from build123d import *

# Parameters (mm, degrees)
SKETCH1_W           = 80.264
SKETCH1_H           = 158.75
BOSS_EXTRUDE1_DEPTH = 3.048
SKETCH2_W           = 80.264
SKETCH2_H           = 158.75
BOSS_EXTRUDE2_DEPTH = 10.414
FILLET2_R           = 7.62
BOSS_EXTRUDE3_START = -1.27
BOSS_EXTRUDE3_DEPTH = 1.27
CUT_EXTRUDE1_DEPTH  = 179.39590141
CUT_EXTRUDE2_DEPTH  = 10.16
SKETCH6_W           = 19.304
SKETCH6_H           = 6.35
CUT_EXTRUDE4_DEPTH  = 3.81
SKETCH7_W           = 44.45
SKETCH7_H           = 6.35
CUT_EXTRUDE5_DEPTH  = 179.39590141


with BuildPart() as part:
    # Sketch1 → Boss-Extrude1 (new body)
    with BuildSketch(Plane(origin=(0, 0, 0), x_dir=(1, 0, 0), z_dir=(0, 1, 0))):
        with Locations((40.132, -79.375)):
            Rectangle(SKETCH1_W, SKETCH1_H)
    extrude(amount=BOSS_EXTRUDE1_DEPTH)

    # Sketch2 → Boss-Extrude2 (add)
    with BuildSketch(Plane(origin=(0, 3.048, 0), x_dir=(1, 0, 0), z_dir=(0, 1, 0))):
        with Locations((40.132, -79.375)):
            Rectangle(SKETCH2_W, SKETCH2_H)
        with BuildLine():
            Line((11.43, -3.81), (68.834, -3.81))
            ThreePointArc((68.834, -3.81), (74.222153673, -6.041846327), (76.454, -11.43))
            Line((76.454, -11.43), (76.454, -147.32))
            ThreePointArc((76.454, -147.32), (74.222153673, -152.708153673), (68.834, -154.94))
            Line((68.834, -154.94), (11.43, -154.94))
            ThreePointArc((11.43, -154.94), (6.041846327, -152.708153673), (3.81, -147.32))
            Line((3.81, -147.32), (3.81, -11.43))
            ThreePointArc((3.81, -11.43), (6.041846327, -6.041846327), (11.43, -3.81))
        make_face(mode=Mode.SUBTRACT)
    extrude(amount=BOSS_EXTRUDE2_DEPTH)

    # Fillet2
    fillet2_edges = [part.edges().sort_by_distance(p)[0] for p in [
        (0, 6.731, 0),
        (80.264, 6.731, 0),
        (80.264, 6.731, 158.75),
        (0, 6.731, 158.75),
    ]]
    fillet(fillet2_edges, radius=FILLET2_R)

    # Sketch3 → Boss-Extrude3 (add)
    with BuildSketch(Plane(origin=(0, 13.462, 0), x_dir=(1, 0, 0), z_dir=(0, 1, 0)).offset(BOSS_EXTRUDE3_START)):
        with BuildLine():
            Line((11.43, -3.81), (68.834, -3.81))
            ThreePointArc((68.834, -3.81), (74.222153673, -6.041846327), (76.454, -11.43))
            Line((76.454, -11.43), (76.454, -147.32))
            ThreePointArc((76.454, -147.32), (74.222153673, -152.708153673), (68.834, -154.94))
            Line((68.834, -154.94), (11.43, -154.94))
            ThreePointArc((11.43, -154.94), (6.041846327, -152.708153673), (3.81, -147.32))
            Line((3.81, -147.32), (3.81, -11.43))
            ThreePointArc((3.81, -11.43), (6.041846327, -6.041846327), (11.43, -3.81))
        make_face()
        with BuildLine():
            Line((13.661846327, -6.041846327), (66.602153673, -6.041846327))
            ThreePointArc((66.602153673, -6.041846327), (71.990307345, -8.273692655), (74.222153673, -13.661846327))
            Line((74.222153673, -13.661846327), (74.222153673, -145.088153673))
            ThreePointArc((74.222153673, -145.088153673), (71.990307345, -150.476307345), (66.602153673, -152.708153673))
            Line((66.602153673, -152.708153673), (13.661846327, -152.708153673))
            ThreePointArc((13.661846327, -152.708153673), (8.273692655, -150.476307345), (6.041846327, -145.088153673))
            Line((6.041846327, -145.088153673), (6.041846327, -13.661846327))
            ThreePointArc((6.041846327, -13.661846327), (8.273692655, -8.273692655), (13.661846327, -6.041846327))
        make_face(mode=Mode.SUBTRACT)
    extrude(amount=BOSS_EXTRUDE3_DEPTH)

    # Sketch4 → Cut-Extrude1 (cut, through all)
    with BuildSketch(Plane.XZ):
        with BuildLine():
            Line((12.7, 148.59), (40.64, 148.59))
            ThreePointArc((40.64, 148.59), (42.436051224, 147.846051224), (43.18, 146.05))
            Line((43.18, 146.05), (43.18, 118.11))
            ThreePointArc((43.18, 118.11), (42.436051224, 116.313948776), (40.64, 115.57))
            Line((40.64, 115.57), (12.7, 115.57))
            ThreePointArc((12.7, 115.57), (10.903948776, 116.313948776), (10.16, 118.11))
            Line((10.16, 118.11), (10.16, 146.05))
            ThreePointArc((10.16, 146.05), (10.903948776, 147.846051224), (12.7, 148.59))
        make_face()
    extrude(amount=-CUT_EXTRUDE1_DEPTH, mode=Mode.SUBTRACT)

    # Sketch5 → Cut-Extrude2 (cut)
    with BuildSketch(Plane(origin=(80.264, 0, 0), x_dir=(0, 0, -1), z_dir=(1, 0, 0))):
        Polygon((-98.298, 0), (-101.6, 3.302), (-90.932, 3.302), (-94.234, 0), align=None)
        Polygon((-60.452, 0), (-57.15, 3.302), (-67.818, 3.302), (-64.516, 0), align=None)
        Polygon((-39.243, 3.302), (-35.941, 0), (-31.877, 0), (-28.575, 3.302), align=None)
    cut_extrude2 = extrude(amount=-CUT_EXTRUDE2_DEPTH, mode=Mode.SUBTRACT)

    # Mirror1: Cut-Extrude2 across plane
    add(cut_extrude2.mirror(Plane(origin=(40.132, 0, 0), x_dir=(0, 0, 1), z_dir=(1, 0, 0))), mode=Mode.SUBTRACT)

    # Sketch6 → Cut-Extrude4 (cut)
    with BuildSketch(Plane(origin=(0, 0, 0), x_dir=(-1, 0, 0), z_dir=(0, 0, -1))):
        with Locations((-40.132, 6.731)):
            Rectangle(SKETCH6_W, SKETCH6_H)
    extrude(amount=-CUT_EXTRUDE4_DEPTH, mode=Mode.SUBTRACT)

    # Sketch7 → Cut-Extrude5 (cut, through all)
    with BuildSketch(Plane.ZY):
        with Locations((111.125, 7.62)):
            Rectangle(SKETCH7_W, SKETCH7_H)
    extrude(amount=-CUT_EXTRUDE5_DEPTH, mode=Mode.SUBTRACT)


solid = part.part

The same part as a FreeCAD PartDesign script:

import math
import FreeCAD as App
import Part
import Sketcher
Q = App.Units.Quantity


def edges_at(feature, points):
    """Names of the edges that pass closest to the given points."""
    edges = feature.Shape.Edges
    near = lambda p: min(range(len(edges)), key=lambda i: edges[i].distToShape(Part.Vertex(*p))[0])
    return sorted({f"Edge{near(p) + 1}" for p in points})


def add_polygon(sketch, points):
    """Adds a closed chain of lines whose ends are joined by coincident constraints."""
    first, n = sketch.GeometryCount, len(points)
    for a, b in zip(points, points[1:] + points[:1]):
        sketch.addGeometry(Part.LineSegment(App.Vector(*a, 0), App.Vector(*b, 0)), False)
    for i in range(n):
        sketch.addConstraint(Sketcher.Constraint("Coincident", first + i, 2, first + (i + 1) % n, 1))

doc = App.newDocument("Part")
body = doc.addObject("PartDesign::Body", "Body")

# Sketch on XZ plane
sketch1 = body.newObject("Sketcher::SketchObject", "Sketch")
sketch1.AttachmentSupport = (doc.getObject("XZ_Plane"), [""])
sketch1.MapMode = "FlatFace"
add_polygon(sketch1, [(0, 0), (0, 159), (80, 159), (80, 0)])  # lines 0-3
sketch1.addConstraint([
    Sketcher.Constraint("Vertical", 0),
    Sketcher.Constraint("Horizontal", 1),
    Sketcher.Constraint("Vertical", 2),
    Sketcher.Constraint("Horizontal", 3),
    Sketcher.Constraint("Coincident", 3, 2, -1, 1),
    Sketcher.Constraint("DistanceX", 1, 1, 1, 2, Q("3.16 in")),
    Sketcher.Constraint("DistanceY", 0, 1, 0, 2, Q("6.25 in")),
])
pad1 = body.newObject("PartDesign::Pad", "Pad")
pad1.Profile = sketch1
pad1.Length = Q("0.12 in")
pad1.Reversed = True

# Sketch on XZ plane
sketch2 = body.newObject("Sketcher::SketchObject", "Sketch001")
sketch2.AttachmentSupport = (doc.getObject("XZ_Plane"), [""])
sketch2.MapMode = "FlatFace"
sketch2.AttachmentOffset = App.Placement(App.Vector(0, 0, -0.12 * 25.4), App.Rotation())
add_polygon(sketch2, [(0, 0), (0, 159), (80, 159), (80, 0)])  # lines 0-3
sketch2.addGeometry(Part.ArcOfCircle(Part.Circle(App.Vector(11, 11, 0), App.Vector(0, 0, 1), 8), math.radians(180), math.radians(270)), False)  # 4
sketch2.addGeometry(Part.LineSegment(App.Vector(11, 4, 0), App.Vector(69, 4, 0)), False)  # 5
sketch2.addGeometry(Part.ArcOfCircle(Part.Circle(App.Vector(69, 11, 0), App.Vector(0, 0, 1), 8), math.radians(-90), math.radians(0)), False)  # 6
sketch2.addGeometry(Part.LineSegment(App.Vector(76, 11, 0), App.Vector(76, 147, 0)), False)  # 7
sketch2.addGeometry(Part.ArcOfCircle(Part.Circle(App.Vector(69, 147, 0), App.Vector(0, 0, 1), 8), math.radians(0), math.radians(90)), False)  # 8
sketch2.addGeometry(Part.LineSegment(App.Vector(69, 155, 0), App.Vector(11, 155, 0)), False)  # 9
sketch2.addGeometry(Part.ArcOfCircle(Part.Circle(App.Vector(11, 147, 0), App.Vector(0, 0, 1), 8), math.radians(90), math.radians(180)), False)  # 10
sketch2.addGeometry(Part.LineSegment(App.Vector(4, 147, 0), App.Vector(4, 11, 0)), False)  # 11
sketch2.addConstraint([
    Sketcher.Constraint("Tangent", 4, 2, 5, 1),
    Sketcher.Constraint("Tangent", 5, 2, 6, 1),
    Sketcher.Constraint("Tangent", 6, 2, 7, 1),
    Sketcher.Constraint("Tangent", 7, 2, 8, 1),
    Sketcher.Constraint("Tangent", 8, 2, 9, 1),
    Sketcher.Constraint("Tangent", 9, 2, 10, 1),
    Sketcher.Constraint("Tangent", 10, 2, 11, 1),
    Sketcher.Constraint("Tangent", 11, 2, 4, 1),
    Sketcher.Constraint("Vertical", 0),
    Sketcher.Constraint("Horizontal", 1),
    Sketcher.Constraint("Vertical", 2),
    Sketcher.Constraint("Horizontal", 3),
    Sketcher.Constraint("Horizontal", 5),
    Sketcher.Constraint("Vertical", 7),
    Sketcher.Constraint("Horizontal", 9),
    Sketcher.Constraint("Vertical", 11),
    Sketcher.Constraint("Coincident", 3, 2, -1, 1),
    Sketcher.Constraint("Equal", 4, 6),
    Sketcher.Constraint("Equal", 6, 8),
    Sketcher.Constraint("Equal", 8, 10),
    Sketcher.Constraint("Radius", 4, Q("0.3 in")),
    Sketcher.Constraint("DistanceX", 1, 1, 1, 2, Q("3.16 in")),
    Sketcher.Constraint("DistanceX", 5, 1, 5, 2, Q("2.26 in")),
    Sketcher.Constraint("DistanceY", 0, 1, 0, 2, Q("6.25 in")),
    Sketcher.Constraint("DistanceY", 7, 1, 7, 2, Q("5.35 in")),
    Sketcher.Constraint("DistanceY", -1, 1, 8, 3, Q("5.8 in")),
    Sketcher.Constraint("DistanceX", -1, 1, 4, 3, Q("0.45 in")),
])
pad2 = body.newObject("PartDesign::Pad", "Pad001")
pad2.Profile = sketch2
pad2.Length = Q("0.41 in")
pad2.Reversed = True
doc.recompute()

fillet = body.newObject("PartDesign::Fillet", "Fillet")
fillet.Base = (pad2, edges_at(pad2, [
    (0, 6.731, 0),
    (80.264, 6.731, 0),
    (80.264, 6.731, 158.75),
    (0, 6.731, 158.75),
]))
fillet.Radius = Q("0.3 in")

# Sketch on XZ plane
sketch3 = body.newObject("Sketcher::SketchObject", "Sketch002")
sketch3.AttachmentSupport = (doc.getObject("XZ_Plane"), [""])
sketch3.MapMode = "FlatFace"
sketch3.AttachmentOffset = App.Placement(App.Vector(0, 0, -0.48 * 25.4), App.Rotation())
sketch3.addGeometry([
    Part.LineSegment(App.Vector(69, 4, 0), App.Vector(11, 4, 0)),  # 0
    Part.ArcOfCircle(Part.Circle(App.Vector(11, 11, 0), App.Vector(0, 0, 1), 8), math.radians(180), math.radians(270)),  # 1
    Part.LineSegment(App.Vector(4, 11, 0), App.Vector(4, 147, 0)),  # 2
    Part.ArcOfCircle(Part.Circle(App.Vector(11, 147, 0), App.Vector(0, 0, 1), 8), math.radians(90), math.radians(180)),  # 3
    Part.LineSegment(App.Vector(11, 155, 0), App.Vector(69, 155, 0)),  # 4
    Part.ArcOfCircle(Part.Circle(App.Vector(69, 147, 0), App.Vector(0, 0, 1), 8), math.radians(0), math.radians(90)),  # 5
    Part.LineSegment(App.Vector(76, 147, 0), App.Vector(76, 11, 0)),  # 6
    Part.ArcOfCircle(Part.Circle(App.Vector(69, 11, 0), App.Vector(0, 0, 1), 8), math.radians(-90), math.radians(0)),  # 7
    Part.LineSegment(App.Vector(14, 6, 0), App.Vector(67, 6, 0)),  # 8
    Part.ArcOfCircle(Part.Circle(App.Vector(67, 14, 0), App.Vector(0, 0, 1), 8), math.radians(-90), math.radians(0)),  # 9
    Part.LineSegment(App.Vector(74, 14, 0), App.Vector(74, 145, 0)),  # 10
    Part.ArcOfCircle(Part.Circle(App.Vector(67, 145, 0), App.Vector(0, 0, 1), 8), math.radians(0), math.radians(90)),  # 11
    Part.LineSegment(App.Vector(67, 153, 0), App.Vector(14, 153, 0)),  # 12
    Part.ArcOfCircle(Part.Circle(App.Vector(14, 145, 0), App.Vector(0, 0, 1), 8), math.radians(90), math.radians(180)),  # 13
    Part.LineSegment(App.Vector(6, 145, 0), App.Vector(6, 14, 0)),  # 14
    Part.ArcOfCircle(Part.Circle(App.Vector(14, 14, 0), App.Vector(0, 0, 1), 8), math.radians(-180), math.radians(-90)),  # 15
], False)
sketch3.addConstraint([
    Sketcher.Constraint("Tangent", 0, 2, 1, 2),
    Sketcher.Constraint("Tangent", 1, 1, 2, 1),
    Sketcher.Constraint("Tangent", 2, 2, 3, 2),
    Sketcher.Constraint("Tangent", 3, 1, 4, 1),
    Sketcher.Constraint("Tangent", 4, 2, 5, 2),
    Sketcher.Constraint("Tangent", 5, 1, 6, 1),
    Sketcher.Constraint("Tangent", 6, 2, 7, 2),
    Sketcher.Constraint("Tangent", 7, 1, 0, 1),
    Sketcher.Constraint("Tangent", 8, 2, 9, 1),
    Sketcher.Constraint("Tangent", 9, 2, 10, 1),
    Sketcher.Constraint("Tangent", 10, 2, 11, 1),
    Sketcher.Constraint("Tangent", 11, 2, 12, 1),
    Sketcher.Constraint("Tangent", 12, 2, 13, 1),
    Sketcher.Constraint("Tangent", 13, 2, 14, 1),
    Sketcher.Constraint("Tangent", 14, 2, 15, 1),
    Sketcher.Constraint("Tangent", 15, 2, 8, 1),
    Sketcher.Constraint("Horizontal", 0),
    Sketcher.Constraint("Vertical", 2),
    Sketcher.Constraint("Horizontal", 4),
    Sketcher.Constraint("Vertical", 6),
    Sketcher.Constraint("Horizontal", 8),
    Sketcher.Constraint("Vertical", 10),
    Sketcher.Constraint("Horizontal", 12),
    Sketcher.Constraint("Vertical", 14),
    Sketcher.Constraint("Equal", 1, 3),
    Sketcher.Constraint("Equal", 3, 5),
    Sketcher.Constraint("Equal", 5, 7),
    Sketcher.Constraint("Equal", 7, 9),
    Sketcher.Constraint("Equal", 9, 11),
    Sketcher.Constraint("Equal", 11, 13),
    Sketcher.Constraint("Equal", 13, 15),
    Sketcher.Constraint("Radius", 1, Q("0.3 in")),
    Sketcher.Constraint("DistanceX", 0, 2, 0, 1, Q("2.26 in")),
    Sketcher.Constraint("DistanceY", 2, 1, 2, 2, Q("5.35 in")),
    Sketcher.Constraint("DistanceY", -1, 1, 3, 3, Q("5.8 in")),
    Sketcher.Constraint("DistanceX", -1, 1, 1, 3, Q("0.45 in")),
    Sketcher.Constraint("DistanceX", 8, 1, 8, 2, Q("52.940307 mm")),
    Sketcher.Constraint("DistanceY", 10, 1, 10, 2, Q("131.426307 mm")),
    Sketcher.Constraint("DistanceX", -1, 1, 9, 3, Q("66.602154 mm")),
    Sketcher.Constraint("DistanceY", -1, 1, 9, 3, Q("13.661846 mm")),
])
pad3 = body.newObject("PartDesign::Pad", "Pad002")
pad3.Profile = sketch3
pad3.Length = Q("0.05 in")
pad3.Reversed = True

# Sketch on XZ plane
sketch4 = body.newObject("Sketcher::SketchObject", "Sketch003")
sketch4.AttachmentSupport = (doc.getObject("XZ_Plane"), [""])
sketch4.MapMode = "FlatFace"
sketch4.addGeometry([
    Part.LineSegment(App.Vector(40.6, 148.6, 0), App.Vector(12.7, 148.6, 0)),  # 0
    Part.ArcOfCircle(Part.Circle(App.Vector(12.7, 146, 0), App.Vector(0, 0, 1), 2.5), math.radians(90), math.radians(180)),  # 1
    Part.LineSegment(App.Vector(10.2, 146.1, 0), App.Vector(10.2, 118.1, 0)),  # 2
    Part.ArcOfCircle(Part.Circle(App.Vector(12.7, 118.1, 0), App.Vector(0, 0, 1), 2.5), math.radians(-180), math.radians(-90)),  # 3
    Part.LineSegment(App.Vector(12.7, 115.6, 0), App.Vector(40.6, 115.6, 0)),  # 4
    Part.ArcOfCircle(Part.Circle(App.Vector(40.6, 118.1, 0), App.Vector(0, 0, 1), 2.5), math.radians(-90), math.radians(0)),  # 5
    Part.LineSegment(App.Vector(43.2, 118.1, 0), App.Vector(43.2, 146.1, 0)),  # 6
    Part.ArcOfCircle(Part.Circle(App.Vector(40.6, 146, 0), App.Vector(0, 0, 1), 2.5), math.radians(0), math.radians(90)),  # 7
], False)
sketch4.addConstraint([
    Sketcher.Constraint("Tangent", 0, 2, 1, 1),
    Sketcher.Constraint("Tangent", 1, 2, 2, 1),
    Sketcher.Constraint("Tangent", 2, 2, 3, 1),
    Sketcher.Constraint("Tangent", 3, 2, 4, 1),
    Sketcher.Constraint("Tangent", 4, 2, 5, 1),
    Sketcher.Constraint("Tangent", 5, 2, 6, 1),
    Sketcher.Constraint("Tangent", 6, 2, 7, 1),
    Sketcher.Constraint("Tangent", 7, 2, 0, 1),
    Sketcher.Constraint("Horizontal", 0),
    Sketcher.Constraint("Vertical", 2),
    Sketcher.Constraint("Horizontal", 4),
    Sketcher.Constraint("Vertical", 6),
    Sketcher.Constraint("Equal", 1, 3),
    Sketcher.Constraint("Equal", 3, 5),
    Sketcher.Constraint("Equal", 5, 7),
    Sketcher.Constraint("Equal", 4, 2),
    Sketcher.Constraint("Radius", 1, Q("0.1 in")),
    Sketcher.Constraint("DistanceX", 0, 2, 0, 1, Q("1.1 in")),
    Sketcher.Constraint("DistanceX", -1, 1, 1, 3, Q("0.5 in")),
    Sketcher.Constraint("DistanceY", -1, 1, 1, 3, Q("5.75 in")),
])
pocket1 = body.newObject("PartDesign::Pocket", "Pocket")
pocket1.Profile = sketch4
pocket1.Type = "ThroughAll"

# Sketch on YZ plane
sketch5 = body.newObject("Sketcher::SketchObject", "Sketch004")
sketch5.AttachmentSupport = (doc.getObject("YZ_Plane"), [""])
sketch5.MapMode = "FlatFace"
sketch5.AttachmentOffset = App.Placement(App.Vector(0, 0, 3.16 * 25.4), App.Rotation())
add_polygon(sketch5, [(3.3, 101.6), (0, 98.3), (0, 94.2), (3.3, 90.9)])  # lines 0-3
add_polygon(sketch5, [(0, 60.5), (3.3, 57.1), (3.3, 67.8), (0, 64.5)])  # lines 4-7
add_polygon(sketch5, [(3.3, 39.2), (0, 35.9), (0, 31.9), (3.3, 28.6)])  # lines 8-11
sketch5.addConstraint([
    Sketcher.Constraint("Vertical", 1),
    Sketcher.Constraint("Vertical", 3),
    Sketcher.Constraint("Vertical", 5),
    Sketcher.Constraint("Vertical", 7),
    Sketcher.Constraint("Vertical", 9),
    Sketcher.Constraint("Vertical", 11),
    Sketcher.Constraint("PointOnObject", 0, 2, -2),
    Sketcher.Constraint("PointOnObject", 6, 2, -2),
    Sketcher.Constraint("PointOnObject", 8, 2, -2),
    Sketcher.Constraint("Perpendicular", 0, 2),
    Sketcher.Constraint("Parallel", 2, 4),
    Sketcher.Constraint("Perpendicular", 4, 6),
    Sketcher.Constraint("Parallel", 6, 8),
    Sketcher.Constraint("Perpendicular", 8, 10),
    Sketcher.Constraint("Vertical", 3, 2, 4, 2),
    Sketcher.Constraint("Vertical", 5, 2, 10, 2),
    Sketcher.Constraint("Equal", 3, 5),
    Sketcher.Constraint("Equal", 7, 9),
    Sketcher.Constraint("Equal", 0, 2),
    Sketcher.Constraint("DistanceY", -1, 1, 3, 2, Q("4 in")),
    Sketcher.Constraint("DistanceY", 1, 2, 1, 1, Q("0.16 in")),
    Sketcher.Constraint("DistanceY", 3, 1, 3, 2, Q("0.42 in")),
    Sketcher.Constraint("DistanceY", 5, 2, 0, 2, Q("1.2 in")),
    Sketcher.Constraint("DistanceY", -1, 1, 8, 2, Q("1.415 in")),
])
pocket2 = body.newObject("PartDesign::Pocket", "Pocket001")
pocket2.Profile = sketch5
pocket2.Length = Q("0.4 in")
doc.recompute()

datumplane = body.newObject("PartDesign::Plane", "DatumPlane")
datumplane.AttachmentSupport = (doc.getObject("YZ_Plane"), [""])
datumplane.MapMode = "FlatFace"
datumplane.AttachmentOffset = App.Placement(App.Vector(0, 0, 1.58 * 25.4), App.Rotation())
mirrored = body.newObject("PartDesign::Mirrored", "Mirrored")
mirrored.Originals = [pocket2]
mirrored.MirrorPlane = (datumplane, [""])
body.Tip = mirrored

# Sketch on XY plane
sketch6 = body.newObject("Sketcher::SketchObject", "Sketch005")
sketch6.AttachmentSupport = (doc.getObject("XY_Plane"), [""])
sketch6.MapMode = "FlatFace"
add_polygon(sketch6, [(50, 10), (50, 4), (30, 4), (30, 10)])  # lines 0-3
sketch6.addConstraint([
    Sketcher.Constraint("Vertical", 0),
    Sketcher.Constraint("Horizontal", 1),
    Sketcher.Constraint("Vertical", 2),
    Sketcher.Constraint("Horizontal", 3),
    Sketcher.Constraint("DistanceX", 1, 2, 1, 1, Q("0.76 in")),
    Sketcher.Constraint("DistanceY", 0, 2, 0, 1, Q("0.25 in")),
    Sketcher.Constraint("DistanceX", -1, 1, 1, 2, Q("1.2 in")),
    Sketcher.Constraint("DistanceY", -1, 1, 0, 2, Q("0.14 in")),
])
pocket3 = body.newObject("PartDesign::Pocket", "Pocket002")
pocket3.Profile = sketch6
pocket3.Length = Q("0.15 in")
pocket3.Reversed = True

# Sketch on YZ plane
sketch7 = body.newObject("Sketcher::SketchObject", "Sketch006")
sketch7.AttachmentSupport = (doc.getObject("YZ_Plane"), [""])
sketch7.MapMode = "FlatFace"
add_polygon(sketch7, [(11, 89), (4, 89), (4, 133), (11, 133)])  # lines 0-3
sketch7.addConstraint([
    Sketcher.Constraint("Horizontal", 0),
    Sketcher.Constraint("Vertical", 1),
    Sketcher.Constraint("Horizontal", 2),
    Sketcher.Constraint("Vertical", 3),
    Sketcher.Constraint("DistanceX", 0, 2, 0, 1, Q("0.25 in")),
    Sketcher.Constraint("DistanceY", 1, 1, 1, 2, Q("1.75 in")),
    Sketcher.Constraint("DistanceY", -1, 1, 0, 2, Q("3.5 in")),
    Sketcher.Constraint("DistanceX", -1, 1, 0, 2, Q("0.175 in")),
])
pocket4 = body.newObject("PartDesign::Pocket", "Pocket003")
pocket4.Profile = sketch7
pocket4.Type = "ThroughAll"
pocket4.Reversed = True

doc.recompute()
